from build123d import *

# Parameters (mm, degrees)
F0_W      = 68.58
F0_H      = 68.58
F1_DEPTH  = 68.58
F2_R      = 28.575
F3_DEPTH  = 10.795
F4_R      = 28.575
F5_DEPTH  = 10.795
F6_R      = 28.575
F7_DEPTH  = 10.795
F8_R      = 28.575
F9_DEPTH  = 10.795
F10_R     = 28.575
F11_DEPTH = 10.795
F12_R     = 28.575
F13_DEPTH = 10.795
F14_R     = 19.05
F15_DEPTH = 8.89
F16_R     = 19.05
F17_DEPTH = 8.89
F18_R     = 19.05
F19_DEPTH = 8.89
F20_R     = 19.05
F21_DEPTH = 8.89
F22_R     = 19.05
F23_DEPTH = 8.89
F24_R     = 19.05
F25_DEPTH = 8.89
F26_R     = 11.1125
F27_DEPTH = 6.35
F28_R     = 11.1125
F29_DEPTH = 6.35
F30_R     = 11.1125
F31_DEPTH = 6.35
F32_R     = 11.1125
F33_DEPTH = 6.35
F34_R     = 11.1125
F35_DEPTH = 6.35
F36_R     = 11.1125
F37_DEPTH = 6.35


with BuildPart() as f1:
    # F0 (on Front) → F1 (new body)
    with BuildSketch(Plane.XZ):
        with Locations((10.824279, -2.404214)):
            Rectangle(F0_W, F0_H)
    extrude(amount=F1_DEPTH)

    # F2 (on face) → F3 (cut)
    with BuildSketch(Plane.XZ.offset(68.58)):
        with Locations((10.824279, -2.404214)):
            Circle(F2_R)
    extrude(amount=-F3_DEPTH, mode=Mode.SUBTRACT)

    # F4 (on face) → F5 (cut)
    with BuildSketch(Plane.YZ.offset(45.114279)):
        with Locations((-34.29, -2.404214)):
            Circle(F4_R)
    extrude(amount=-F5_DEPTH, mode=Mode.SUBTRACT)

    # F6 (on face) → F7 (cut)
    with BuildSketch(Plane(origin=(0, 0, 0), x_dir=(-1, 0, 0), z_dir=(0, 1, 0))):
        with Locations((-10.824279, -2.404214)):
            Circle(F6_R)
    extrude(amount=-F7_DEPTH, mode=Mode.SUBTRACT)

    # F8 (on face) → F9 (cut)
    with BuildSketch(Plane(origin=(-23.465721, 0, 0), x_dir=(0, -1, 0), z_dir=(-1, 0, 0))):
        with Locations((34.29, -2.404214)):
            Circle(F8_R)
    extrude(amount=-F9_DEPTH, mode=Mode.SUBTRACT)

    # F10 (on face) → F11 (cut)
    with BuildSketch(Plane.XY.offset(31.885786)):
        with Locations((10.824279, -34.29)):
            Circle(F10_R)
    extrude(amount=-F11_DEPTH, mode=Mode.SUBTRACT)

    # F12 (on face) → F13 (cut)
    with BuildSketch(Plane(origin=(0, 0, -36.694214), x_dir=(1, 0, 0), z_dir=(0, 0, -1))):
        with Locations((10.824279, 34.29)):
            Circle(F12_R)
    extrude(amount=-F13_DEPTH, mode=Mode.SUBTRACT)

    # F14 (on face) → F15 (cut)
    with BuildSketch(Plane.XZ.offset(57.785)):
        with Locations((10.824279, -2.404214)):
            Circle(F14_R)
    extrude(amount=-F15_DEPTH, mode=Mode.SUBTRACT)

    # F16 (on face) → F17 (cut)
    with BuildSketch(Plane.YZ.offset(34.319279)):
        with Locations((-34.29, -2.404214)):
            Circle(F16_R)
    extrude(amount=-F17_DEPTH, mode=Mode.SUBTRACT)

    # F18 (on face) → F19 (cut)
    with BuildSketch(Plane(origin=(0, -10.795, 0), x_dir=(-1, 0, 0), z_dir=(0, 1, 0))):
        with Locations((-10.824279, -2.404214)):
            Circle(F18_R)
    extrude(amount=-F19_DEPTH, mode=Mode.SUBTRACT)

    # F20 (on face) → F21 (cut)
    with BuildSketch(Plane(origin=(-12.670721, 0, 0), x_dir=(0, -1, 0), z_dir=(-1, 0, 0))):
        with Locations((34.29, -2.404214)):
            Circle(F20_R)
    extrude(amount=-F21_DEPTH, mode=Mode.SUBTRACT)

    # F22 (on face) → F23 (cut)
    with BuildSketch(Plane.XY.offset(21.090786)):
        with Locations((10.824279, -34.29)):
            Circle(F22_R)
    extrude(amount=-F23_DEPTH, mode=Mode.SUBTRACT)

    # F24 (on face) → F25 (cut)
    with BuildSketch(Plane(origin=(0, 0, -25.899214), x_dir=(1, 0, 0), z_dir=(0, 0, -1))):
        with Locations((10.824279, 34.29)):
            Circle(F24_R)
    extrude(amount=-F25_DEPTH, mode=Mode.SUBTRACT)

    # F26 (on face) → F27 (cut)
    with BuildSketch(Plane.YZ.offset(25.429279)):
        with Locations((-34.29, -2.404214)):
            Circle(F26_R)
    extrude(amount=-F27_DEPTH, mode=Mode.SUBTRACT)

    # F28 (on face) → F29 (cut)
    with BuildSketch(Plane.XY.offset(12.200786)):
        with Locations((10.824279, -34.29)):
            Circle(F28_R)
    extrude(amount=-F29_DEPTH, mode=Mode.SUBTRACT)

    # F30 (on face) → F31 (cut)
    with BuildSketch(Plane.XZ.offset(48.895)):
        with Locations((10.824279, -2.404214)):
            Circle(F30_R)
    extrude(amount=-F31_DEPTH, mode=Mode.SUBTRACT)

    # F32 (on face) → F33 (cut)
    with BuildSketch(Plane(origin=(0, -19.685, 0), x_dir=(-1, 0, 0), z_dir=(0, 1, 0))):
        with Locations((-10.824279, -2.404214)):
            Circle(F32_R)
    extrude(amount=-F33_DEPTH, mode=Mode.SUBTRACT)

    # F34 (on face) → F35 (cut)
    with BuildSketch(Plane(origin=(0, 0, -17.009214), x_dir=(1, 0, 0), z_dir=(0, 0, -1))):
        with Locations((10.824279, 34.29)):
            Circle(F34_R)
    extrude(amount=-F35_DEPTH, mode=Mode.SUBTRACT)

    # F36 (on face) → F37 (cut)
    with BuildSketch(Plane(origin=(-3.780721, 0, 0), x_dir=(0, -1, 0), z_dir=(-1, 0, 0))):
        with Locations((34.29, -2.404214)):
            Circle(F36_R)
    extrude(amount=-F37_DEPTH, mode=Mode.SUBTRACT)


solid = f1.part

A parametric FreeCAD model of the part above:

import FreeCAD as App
import Part
import Sketcher
from FreeCAD import Vector
Q = App.Units.Quantity

doc = App.newDocument("Part")
body = doc.addObject("PartDesign::Body", "Body")

# Sketch on XZ plane
sketch1 = body.newObject("Sketcher::SketchObject", "Sketch")
sketch1.AttachmentSupport = (doc.getObject("XZ_Plane"), [""])
sketch1.MapMode = "FlatFace"
sketch1.addGeometry(Part.LineSegment(Vector(-23, 32, 0), Vector(-23, -37, 0)), False)
sketch1.addGeometry(Part.LineSegment(Vector(-23, -37, 0), Vector(45, -37, 0)), False)
sketch1.addGeometry(Part.LineSegment(Vector(45, -37, 0), Vector(45, 32, 0)), False)
sketch1.addGeometry(Part.LineSegment(Vector(45, 32, 0), Vector(-23, 32, 0)), False)
sketch1.addConstraint(Sketcher.Constraint("Coincident", 0, 2, 1, 1))
sketch1.addConstraint(Sketcher.Constraint("Coincident", 1, 2, 2, 1))
sketch1.addConstraint(Sketcher.Constraint("Coincident", 2, 2, 3, 1))
sketch1.addConstraint(Sketcher.Constraint("Coincident", 3, 2, 0, 1))
sketch1.addConstraint(Sketcher.Constraint("Vertical", 0))
sketch1.addConstraint(Sketcher.Constraint("Horizontal", 1))
sketch1.addConstraint(Sketcher.Constraint("Vertical", 2))
sketch1.addConstraint(Sketcher.Constraint("Horizontal", 3))
sketch1.addConstraint(Sketcher.Constraint("Equal", 3, 0))
sketch1.addConstraint(Sketcher.Constraint("DistanceX", 1, 1, 1, 2, Q("2.7 in")))
sketch1.addConstraint(Sketcher.Constraint("DistanceX", 0, 2, -1, 1, Q("23.465721 mm")))
sketch1.addConstraint(Sketcher.Constraint("DistanceY", 0, 2, -1, 1, Q("36.694214 mm")))
pad1 = body.newObject("PartDesign::Pad", "Pad")
pad1.Profile = sketch1
pad1.Length = Q("2.7 in")

# Sketch on XZ plane
sketch2 = body.newObject("Sketcher::SketchObject", "Sketch001")
sketch2.AttachmentSupport = (doc.getObject("XZ_Plane"), [""])
sketch2.MapMode = "FlatFace"
sketch2.AttachmentOffset = App.Placement(Vector(0, 0, 2.7 * 25.4), App.Rotation())
sketch2.addGeometry(Part.Circle(Vector(11, -2, 0), Vector(0, 0, 1), 29), False)
sketch2.addConstraint(Sketcher.Constraint("Diameter", 0, Q("2.25 in")))
sketch2.addConstraint(Sketcher.Constraint("DistanceX", -1, 1, 0, 3, Q("10.824279 mm")))
sketch2.addConstraint(Sketcher.Constraint("DistanceY", 0, 3, -1, 1, Q("2.404214 mm")))
pocket1 = body.newObject("PartDesign::Pocket", "Pocket")
pocket1.Profile = sketch2
pocket1.Length = Q("0.425 in")

# Sketch on YZ plane
sketch3 = body.newObject("Sketcher::SketchObject", "Sketch002")
sketch3.AttachmentSupport = (doc.getObject("YZ_Plane"), [""])
sketch3.MapMode = "FlatFace"
sketch3.AttachmentOffset = App.Placement(Vector(0, 0, 45.114279), App.Rotation())
sketch3.addGeometry(Part.Circle(Vector(-34, -2, 0), Vector(0, 0, 1), 29), False)
sketch3.addConstraint(Sketcher.Constraint("Diameter", 0, Q("2.25 in")))
sketch3.addConstraint(Sketcher.Constraint("DistanceX", 0, 3, -1, 1, Q("1.35 in")))
sketch3.addConstraint(Sketcher.Constraint("DistanceY", 0, 3, -1, 1, Q("2.404214 mm")))
pocket2 = body.newObject("PartDesign::Pocket", "Pocket001")
pocket2.Profile = sketch3
pocket2.Length = Q("0.425 in")

# Sketch on XZ plane
sketch4 = body.newObject("Sketcher::SketchObject", "Sketch003")
sketch4.AttachmentSupport = (doc.getObject("XZ_Plane"), [""])
sketch4.MapMode = "FlatFace"
sketch4.addGeometry(Part.Circle(Vector(11, -2, 0), Vector(0, 0, 1), 29), False)
sketch4.addConstraint(Sketcher.Constraint("Diameter", 0, Q("2.25 in")))
sketch4.addConstraint(Sketcher.Constraint("DistanceX", -1, 1, 0, 3, Q("10.824279 mm")))
sketch4.addConstraint(Sketcher.Constraint("DistanceY", 0, 3, -1, 1, Q("2.404214 mm")))
pocket3 = body.newObject("PartDesign::Pocket", "Pocket002")
pocket3.Profile = sketch4
pocket3.Length = Q("0.425 in")
pocket3.Reversed = True

# Sketch on YZ plane
sketch5 = body.newObject("Sketcher::SketchObject", "Sketch004")
sketch5.AttachmentSupport = (doc.getObject("YZ_Plane"), [""])
sketch5.MapMode = "FlatFace"
sketch5.AttachmentOffset = App.Placement(Vector(0, 0, -23.465721), App.Rotation())
sketch5.addGeometry(Part.Circle(Vector(-34, -2, 0), Vector(0, 0, 1), 29), False)
sketch5.addConstraint(Sketcher.Constraint("Diameter", 0, Q("2.25 in")))
sketch5.addConstraint(Sketcher.Constraint("DistanceX", 0, 3, -1, 1, Q("1.35 in")))
sketch5.addConstraint(Sketcher.Constraint("DistanceY", 0, 3, -1, 1, Q("2.404214 mm")))
pocket4 = body.newObject("PartDesign::Pocket", "Pocket003")
pocket4.Profile = sketch5
pocket4.Length = Q("0.425 in")
pocket4.Reversed = True

# Sketch on XY plane
sketch6 = body.newObject("Sketcher::SketchObject", "Sketch005")
sketch6.AttachmentSupport = (doc.getObject("XY_Plane"), [""])
sketch6.MapMode = "FlatFace"
sketch6.AttachmentOffset = App.Placement(Vector(0, 0, 31.885786), App.Rotation())
sketch6.addGeometry(Part.Circle(Vector(11, -34, 0), Vector(0, 0, 1), 29), False)
sketch6.addConstraint(Sketcher.Constraint("Diameter", 0, Q("2.25 in")))
sketch6.addConstraint(Sketcher.Constraint("DistanceY", 0, 3, -1, 1, Q("1.35 in")))
sketch6.addConstraint(Sketcher.Constraint("DistanceX", -1, 1, 0, 3, Q("10.824279 mm")))
pocket5 = body.newObject("PartDesign::Pocket", "Pocket004")
pocket5.Profile = sketch6
pocket5.Length = Q("0.425 in")

# Sketch on XY plane
sketch7 = body.newObject("Sketcher::SketchObject", "Sketch006")
sketch7.AttachmentSupport = (doc.getObject("XY_Plane"), [""])
sketch7.MapMode = "FlatFace"
sketch7.AttachmentOffset = App.Placement(Vector(0, 0, -36.694214), App.Rotation())
sketch7.addGeometry(Part.Circle(Vector(11, -34, 0), Vector(0, 0, 1), 29), False)
sketch7.addConstraint(Sketcher.Constraint("Diameter", 0, Q("2.25 in")))
sketch7.addConstraint(Sketcher.Constraint("DistanceY", 0, 3, -1, 1, Q("1.35 in")))
sketch7.addConstraint(Sketcher.Constraint("DistanceX", -1, 1, 0, 3, Q("10.824279 mm")))
pocket6 = body.newObject("PartDesign::Pocket", "Pocket005")
pocket6.Profile = sketch7
pocket6.Length = Q("0.425 in")
pocket6.Reversed = True

# Sketch on XZ plane
sketch8 = body.newObject("Sketcher::SketchObject", "Sketch007")
sketch8.AttachmentSupport = (doc.getObject("XZ_Plane"), [""])
sketch8.MapMode = "FlatFace"
sketch8.AttachmentOffset = App.Placement(Vector(0, 0, 2.275 * 25.4), App.Rotation())
sketch8.addGeometry(Part.Circle(Vector(11, -2, 0), Vector(0, 0, 1), 19), False)
sketch8.addConstraint(Sketcher.Constraint("Diameter", 0, Q("1.5 in")))
sketch8.addConstraint(Sketcher.Constraint("DistanceX", -1, 1, 0, 3, Q("10.824279 mm")))
sketch8.addConstraint(Sketcher.Constraint("DistanceY", 0, 3, -1, 1, Q("2.404214 mm")))
pocket7 = body.newObject("PartDesign::Pocket", "Pocket006")
pocket7.Profile = sketch8
pocket7.Length = Q("0.35 in")

# Sketch on YZ plane
sketch9 = body.newObject("Sketcher::SketchObject", "Sketch008")
sketch9.AttachmentSupport = (doc.getObject("YZ_Plane"), [""])
sketch9.MapMode = "FlatFace"
sketch9.AttachmentOffset = App.Placement(Vector(0, 0, 34.319279), App.Rotation())
sketch9.addGeometry(Part.Circle(Vector(-34, -2, 0), Vector(0, 0, 1), 19), False)
sketch9.addConstraint(Sketcher.Constraint("Diameter", 0, Q("1.5 in")))
sketch9.addConstraint(Sketcher.Constraint("DistanceX", 0, 3, -1, 1, Q("1.35 in")))
sketch9.addConstraint(Sketcher.Constraint("DistanceY", 0, 3, -1, 1, Q("2.404214 mm")))
pocket8 = body.newObject("PartDesign::Pocket", "Pocket007")
pocket8.Profile = sketch9
pocket8.Length = Q("0.35 in")

# Sketch on XZ plane
sketch10 = body.newObject("Sketcher::SketchObject", "Sketch009")
sketch10.AttachmentSupport = (doc.getObject("XZ_Plane"), [""])
sketch10.MapMode = "FlatFace"
sketch10.AttachmentOffset = App.Placement(Vector(0, 0, 0.425 * 25.4), App.Rotation())
sketch10.addGeometry(Part.Circle(Vector(11, -2, 0), Vector(0, 0, 1), 19), False)
sketch10.addConstraint(Sketcher.Constraint("Diameter", 0, Q("1.5 in")))
sketch10.addConstraint(Sketcher.Constraint("DistanceX", -1, 1, 0, 3, Q("10.824279 mm")))
sketch10.addConstraint(Sketcher.Constraint("DistanceY", 0, 3, -1, 1, Q("2.404214 mm")))
pocket9 = body.newObject("PartDesign::Pocket", "Pocket008")
pocket9.Profile = sketch10
pocket9.Length = Q("0.35 in")
pocket9.Reversed = True

# Sketch on YZ plane
sketch11 = body.newObject("Sketcher::SketchObject", "Sketch010")
sketch11.AttachmentSupport = (doc.getObject("YZ_Plane"), [""])
sketch11.MapMode = "FlatFace"
sketch11.AttachmentOffset = App.Placement(Vector(0, 0, -12.670721), App.Rotation())
sketch11.addGeometry(Part.Circle(Vector(-34, -2, 0), Vector(0, 0, 1), 19), False)
sketch11.addConstraint(Sketcher.Constraint("Diameter", 0, Q("1.5 in")))
sketch11.addConstraint(Sketcher.Constraint("DistanceX", 0, 3, -1, 1, Q("1.35 in")))
sketch11.addConstraint(Sketcher.Constraint("DistanceY", 0, 3, -1, 1, Q("2.404214 mm")))
pocket10 = body.newObject("PartDesign::Pocket", "Pocket009")
pocket10.Profile = sketch11
pocket10.Length = Q("0.35 in")
pocket10.Reversed = True

# Sketch on XY plane
sketch12 = body.newObject("Sketcher::SketchObject", "Sketch011")
sketch12.AttachmentSupport = (doc.getObject("XY_Plane"), [""])
sketch12.MapMode = "FlatFace"
sketch12.AttachmentOffset = App.Placement(Vector(0, 0, 21.090786), App.Rotation())
sketch12.addGeometry(Part.Circle(Vector(11, -34, 0), Vector(0, 0, 1), 19), False)
sketch12.addConstraint(Sketcher.Constraint("Diameter", 0, Q("1.5 in")))
sketch12.addConstraint(Sketcher.Constraint("DistanceY", 0, 3, -1, 1, Q("1.35 in")))
sketch12.addConstraint(Sketcher.Constraint("DistanceX", -1, 1, 0, 3, Q("10.824279 mm")))
pocket11 = body.newObject("PartDesign::Pocket", "Pocket010")
pocket11.Profile = sketch12
pocket11.Length = Q("0.35 in")

# Sketch on XY plane
sketch13 = body.newObject("Sketcher::SketchObject", "Sketch012")
sketch13.AttachmentSupport = (doc.getObject("XY_Plane"), [""])
sketch13.MapMode = "FlatFace"
sketch13.AttachmentOffset = App.Placement(Vector(0, 0, -25.899214), App.Rotation())
sketch13.addGeometry(Part.Circle(Vector(11, -34, 0), Vector(0, 0, 1), 19), False)
sketch13.addConstraint(Sketcher.Constraint("Diameter", 0, Q("1.5 in")))
sketch13.addConstraint(Sketcher.Constraint("DistanceY", 0, 3, -1, 1, Q("1.35 in")))
sketch13.addConstraint(Sketcher.Constraint("DistanceX", -1, 1, 0, 3, Q("10.824279 mm")))
pocket12 = body.newObject("PartDesign::Pocket", "Pocket011")
pocket12.Profile = sketch13
pocket12.Length = Q("0.35 in")
pocket12.Reversed = True

# Sketch on YZ plane
sketch14 = body.newObject("Sketcher::SketchObject", "Sketch013")
sketch14.AttachmentSupport = (doc.getObject("YZ_Plane"), [""])
sketch14.MapMode = "FlatFace"
sketch14.AttachmentOffset = App.Placement(Vector(0, 0, 25.429279), App.Rotation())
sketch14.addGeometry(Part.Circle(Vector(-34, -2, 0), Vector(0, 0, 1), 11), False)
sketch14.addConstraint(Sketcher.Constraint("Diameter", 0, Q("0.875 in")))
sketch14.addConstraint(Sketcher.Constraint("DistanceX", 0, 3, -1, 1, Q("1.35 in")))
sketch14.addConstraint(Sketcher.Constraint("DistanceY", 0, 3, -1, 1, Q("2.404214 mm")))
pocket13 = body.newObject("PartDesign::Pocket", "Pocket012")
pocket13.Profile = sketch14
pocket13.Length = Q("0.25 in")

# Sketch on XY plane
sketch15 = body.newObject("Sketcher::SketchObject", "Sketch014")
sketch15.AttachmentSupport = (doc.getObject("XY_Plane"), [""])
sketch15.MapMode = "FlatFace"
sketch15.AttachmentOffset = App.Placement(Vector(0, 0, 12.200786), App.Rotation())
sketch15.addGeometry(Part.Circle(Vector(11, -34, 0), Vector(0, 0, 1), 11), False)
sketch15.addConstraint(Sketcher.Constraint("Diameter", 0, Q("0.875 in")))
sketch15.addConstraint(Sketcher.Constraint("DistanceY", 0, 3, -1, 1, Q("1.35 in")))
sketch15.addConstraint(Sketcher.Constraint("DistanceX", -1, 1, 0, 3, Q("10.824279 mm")))
pocket14 = body.newObject("PartDesign::Pocket", "Pocket013")
pocket14.Profile = sketch15
pocket14.Length = Q("0.25 in")

# Sketch on XZ plane
sketch16 = body.newObject("Sketcher::SketchObject", "Sketch015")
sketch16.AttachmentSupport = (doc.getObject("XZ_Plane"), [""])
sketch16.MapMode = "FlatFace"
sketch16.AttachmentOffset = App.Placement(Vector(0, 0, 1.925 * 25.4), App.Rotation())
sketch16.addGeometry(Part.Circle(Vector(11, -2, 0), Vector(0, 0, 1), 11), False)
sketch16.addConstraint(Sketcher.Constraint("Diameter", 0, Q("0.875 in")))
sketch16.addConstraint(Sketcher.Constraint("DistanceX", -1, 1, 0, 3, Q("10.824279 mm")))
sketch16.addConstraint(Sketcher.Constraint("DistanceY", 0, 3, -1, 1, Q("2.404214 mm")))
pocket15 = body.newObject("PartDesign::Pocket", "Pocket014")
pocket15.Profile = sketch16
pocket15.Length = Q("0.25 in")

# Sketch on XZ plane
sketch17 = body.newObject("Sketcher::SketchObject", "Sketch016")
sketch17.AttachmentSupport = (doc.getObject("XZ_Plane"), [""])
sketch17.MapMode = "FlatFace"
sketch17.AttachmentOffset = App.Placement(Vector(0, 0, 0.775 * 25.4), App.Rotation())
sketch17.addGeometry(Part.Circle(Vector(11, -2, 0), Vector(0, 0, 1), 11), False)
sketch17.addConstraint(Sketcher.Constraint("Diameter", 0, Q("0.875 in")))
sketch17.addConstraint(Sketcher.Constraint("DistanceX", -1, 1, 0, 3, Q("10.824279 mm")))
sketch17.addConstraint(Sketcher.Constraint("DistanceY", 0, 3, -1, 1, Q("2.404214 mm")))
pocket16 = body.newObject("PartDesign::Pocket", "Pocket015")
pocket16.Profile = sketch17
pocket16.Length = Q("0.25 in")
pocket16.Reversed = True

# Sketch on XY plane
sketch18 = body.newObject("Sketcher::SketchObject", "Sketch017")
sketch18.AttachmentSupport = (doc.getObject("XY_Plane"), [""])
sketch18.MapMode = "FlatFace"
sketch18.AttachmentOffset = App.Placement(Vector(0, 0, -17.009214), App.Rotation())
sketch18.addGeometry(Part.Circle(Vector(11, -34, 0), Vector(0, 0, 1), 11), False)
sketch18.addConstraint(Sketcher.Constraint("Diameter", 0, Q("0.875 in")))
sketch18.addConstraint(Sketcher.Constraint("DistanceY", 0, 3, -1, 1, Q("1.35 in")))
sketch18.addConstraint(Sketcher.Constraint("DistanceX", -1, 1, 0, 3, Q("10.824279 mm")))
pocket17 = body.newObject("PartDesign::Pocket", "Pocket016")
pocket17.Profile = sketch18
pocket17.Length = Q("0.25 in")
pocket17.Reversed = True

# Sketch on YZ plane
sketch19 = body.newObject("Sketcher::SketchObject", "Sketch018")
sketch19.AttachmentSupport = (doc.getObject("YZ_Plane"), [""])
sketch19.MapMode = "FlatFace"
sketch19.AttachmentOffset = App.Placement(Vector(0, 0, -3.780721), App.Rotation())
sketch19.addGeometry(Part.Circle(Vector(-34, -2, 0), Vector(0, 0, 1), 11), False)
sketch19.addConstraint(Sketcher.Constraint("Diameter", 0, Q("0.875 in")))
sketch19.addConstraint(Sketcher.Constraint("DistanceX", 0, 3, -1, 1, Q("1.35 in")))
sketch19.addConstraint(Sketcher.Constraint("DistanceY", 0, 3, -1, 1, Q("2.404214 mm")))
pocket18 = body.newObject("PartDesign::Pocket", "Pocket017")
pocket18.Profile = sketch19
pocket18.Length = Q("0.25 in")
pocket18.Reversed = True

doc.recompute()
